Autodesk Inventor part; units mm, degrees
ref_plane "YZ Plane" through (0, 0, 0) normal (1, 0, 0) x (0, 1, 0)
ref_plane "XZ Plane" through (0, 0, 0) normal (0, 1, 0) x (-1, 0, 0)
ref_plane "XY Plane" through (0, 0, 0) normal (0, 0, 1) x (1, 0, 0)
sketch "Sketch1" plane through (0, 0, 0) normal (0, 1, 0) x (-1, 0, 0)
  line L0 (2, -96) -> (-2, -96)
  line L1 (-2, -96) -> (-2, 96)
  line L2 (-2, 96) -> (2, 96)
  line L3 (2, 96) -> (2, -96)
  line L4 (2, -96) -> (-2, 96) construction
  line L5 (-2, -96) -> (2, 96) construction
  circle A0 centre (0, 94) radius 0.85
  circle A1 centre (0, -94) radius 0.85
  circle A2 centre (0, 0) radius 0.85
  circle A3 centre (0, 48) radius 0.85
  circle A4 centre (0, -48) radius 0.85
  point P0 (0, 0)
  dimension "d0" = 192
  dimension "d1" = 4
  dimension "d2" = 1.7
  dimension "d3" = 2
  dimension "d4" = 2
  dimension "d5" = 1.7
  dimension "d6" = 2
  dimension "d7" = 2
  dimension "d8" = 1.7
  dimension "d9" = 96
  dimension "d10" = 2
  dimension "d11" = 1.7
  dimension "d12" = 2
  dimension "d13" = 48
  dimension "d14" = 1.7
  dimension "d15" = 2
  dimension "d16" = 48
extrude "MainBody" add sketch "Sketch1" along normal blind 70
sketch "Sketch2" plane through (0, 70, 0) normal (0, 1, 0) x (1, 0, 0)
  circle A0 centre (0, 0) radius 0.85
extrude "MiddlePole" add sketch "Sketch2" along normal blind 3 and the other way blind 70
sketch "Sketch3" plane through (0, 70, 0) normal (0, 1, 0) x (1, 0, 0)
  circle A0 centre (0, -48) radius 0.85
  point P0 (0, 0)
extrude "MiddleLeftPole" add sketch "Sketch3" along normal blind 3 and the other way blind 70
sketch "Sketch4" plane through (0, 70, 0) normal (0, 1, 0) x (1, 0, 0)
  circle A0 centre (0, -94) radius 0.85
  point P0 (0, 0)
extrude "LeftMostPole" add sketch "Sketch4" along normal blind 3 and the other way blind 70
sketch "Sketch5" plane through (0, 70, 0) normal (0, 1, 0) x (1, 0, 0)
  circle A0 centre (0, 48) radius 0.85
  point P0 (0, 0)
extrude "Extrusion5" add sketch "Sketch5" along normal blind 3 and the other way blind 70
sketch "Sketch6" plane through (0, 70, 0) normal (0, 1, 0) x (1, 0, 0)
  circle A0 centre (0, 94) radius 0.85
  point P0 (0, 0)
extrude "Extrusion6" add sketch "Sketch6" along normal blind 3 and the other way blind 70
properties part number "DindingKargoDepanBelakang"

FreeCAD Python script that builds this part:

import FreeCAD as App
import Part
import Sketcher
Q = App.Units.Quantity

doc = App.newDocument("Part")
body = doc.addObject("PartDesign::Body", "Body")

# Sketch on XZ plane
sketch1 = doc.addObject("Sketcher::SketchObject", "Sketch")
body.addObject(sketch1)
sketch1.AttachmentSupport = (doc.XZ_Plane, [""])
sketch1.MapMode = "FlatFace"
sketch1.addGeometry([
    Part.LineSegment(App.Vector(2, -96, 0), App.Vector(-2, -96, 0)),  # 0
    Part.LineSegment(App.Vector(-2, -96, 0), App.Vector(-2, 96, 0)),  # 1
    Part.LineSegment(App.Vector(-2, 96, 0), App.Vector(2, 96, 0)),  # 2
    Part.LineSegment(App.Vector(2, 96, 0), App.Vector(2, -96, 0)),  # 3
    Part.Circle(App.Vector(0, -94, 0), App.Vector(0, 0, 1), 0.8),  # 4
    Part.Circle(App.Vector(0, -48, 0), App.Vector(0, 0, 1), 0.8),  # 5
    Part.Circle(App.Vector(0, 0, 0), App.Vector(0, 0, 1), 0.8),  # 6
    Part.Circle(App.Vector(0, 48, 0), App.Vector(0, 0, 1), 0.8),  # 7
    Part.Circle(App.Vector(0, 94, 0), App.Vector(0, 0, 1), 0.8),  # 8
], False)
sketch1.addConstraint([
    Sketcher.Constraint("Coincident", 0, 2, 1, 1),
    Sketcher.Constraint("Coincident", 1, 2, 2, 1),
    Sketcher.Constraint("Coincident", 2, 2, 3, 1),
    Sketcher.Constraint("Coincident", 3, 2, 0, 1),
    Sketcher.Constraint("Horizontal", 0),
    Sketcher.Constraint("Vertical", 1),
    Sketcher.Constraint("Horizontal", 2),
    Sketcher.Constraint("Vertical", 3),
    Sketcher.Constraint("Coincident", 6, 3, -1, 1),
    Sketcher.Constraint("Equal", 4, 5),
    Sketcher.Constraint("Equal", 5, 6),
    Sketcher.Constraint("Equal", 6, 7),
    Sketcher.Constraint("Equal", 7, 8),
    Sketcher.Constraint("Symmetric", 5, 3, 7, 3, -1, 1),
    Sketcher.Constraint("Symmetric", 4, 3, 8, 3, -1, 1),
    Sketcher.Constraint("Symmetric", 0, 2, 2, 2, -1, 1),
    Sketcher.Constraint("PointOnObject", 4, 3, -2),
    Sketcher.Constraint("PointOnObject", 5, 3, -2),
    Sketcher.Constraint("Diameter", 4, Q("1.7 mm")),
    Sketcher.Constraint("DistanceX", 0, 2, 0, 1, Q("4 mm")),
    Sketcher.Constraint("DistanceY", 1, 1, 1, 2, Q("192 mm")),
    Sketcher.Constraint("DistanceY", 5, 3, -1, 1, Q("48 mm")),
    Sketcher.Constraint("DistanceY", 0, 2, 4, 3, Q("2 mm")),
])
pad1 = doc.addObject("PartDesign::Pad", "Pad")
body.addObject(pad1)
pad1.Profile = sketch1
pad1.Length = 70
pad1.Reversed = True

# Sketch on XZ plane
sketch2 = doc.addObject("Sketcher::SketchObject", "Sketch001")
body.addObject(sketch2)
sketch2.AttachmentSupport = (doc.XZ_Plane, [""])
sketch2.MapMode = "FlatFace"
sketch2.AttachmentOffset = App.Placement(App.Vector(0, 0, -70), App.Rotation())
sketch2.addGeometry(Part.Circle(App.Vector(0, 0, 0), App.Vector(0, 0, 1), 0.8), False)
sketch2.addConstraint([
    Sketcher.Constraint("Coincident", 0, 3, -1, 1),
    Sketcher.Constraint("Diameter", 0, Q("1.7 mm")),
])
pad2 = doc.addObject("PartDesign::Pad", "Pad001")
body.addObject(pad2)
pad2.Profile = sketch2
pad2.Type = "TwoLengths"
pad2.Length = 3
pad2.Length2 = 70
pad2.Reversed = True

# Sketch on XZ plane
sketch3 = doc.addObject("Sketcher::SketchObject", "Sketch002")
body.addObject(sketch3)
sketch3.AttachmentSupport = (doc.XZ_Plane, [""])
sketch3.MapMode = "FlatFace"
sketch3.AttachmentOffset = App.Placement(App.Vector(0, 0, -70), App.Rotation())
sketch3.addGeometry(Part.Circle(App.Vector(0, 48, 0), App.Vector(0, 0, 1), 0.8), False)
sketch3.addConstraint([
    Sketcher.Constraint("PointOnObject", 0, 3, -2),
    Sketcher.Constraint("Diameter", 0, Q("1.7 mm")),
    Sketcher.Constraint("DistanceY", -1, 1, 0, 3, Q("48 mm")),
])
pad3 = doc.addObject("PartDesign::Pad", "Pad002")
body.addObject(pad3)
pad3.Profile = sketch3
pad3.Type = "TwoLengths"
pad3.Length = 3
pad3.Length2 = 70
pad3.Reversed = True

# Sketch on XZ plane
sketch4 = doc.addObject("Sketcher::SketchObject", "Sketch003")
body.addObject(sketch4)
sketch4.AttachmentSupport = (doc.XZ_Plane, [""])
sketch4.MapMode = "FlatFace"
sketch4.AttachmentOffset = App.Placement(App.Vector(0, 0, -70), App.Rotation())
sketch4.addGeometry(Part.Circle(App.Vector(0, 94, 0), App.Vector(0, 0, 1), 0.8), False)
sketch4.addConstraint([
    Sketcher.Constraint("PointOnObject", 0, 3, -2),
    Sketcher.Constraint("Diameter", 0, Q("1.7 mm")),
    Sketcher.Constraint("DistanceY", -1, 1, 0, 3, Q("94 mm")),
])
pad4 = doc.addObject("PartDesign::Pad", "Pad003")
body.addObject(pad4)
pad4.Profile = sketch4
pad4.Type = "TwoLengths"
pad4.Length = 3
pad4.Length2 = 70
pad4.Reversed = True

# Sketch on XZ plane
sketch5 = doc.addObject("Sketcher::SketchObject", "Sketch004")
body.addObject(sketch5)
sketch5.AttachmentSupport = (doc.XZ_Plane, [""])
sketch5.MapMode = "FlatFace"
sketch5.AttachmentOffset = App.Placement(App.Vector(0, 0, -70), App.Rotation())
sketch5.addGeometry(Part.Circle(App.Vector(0, -48, 0), App.Vector(0, 0, 1), 0.8), False)
sketch5.addConstraint([
    Sketcher.Constraint("PointOnObject", 0, 3, -2),
    Sketcher.Constraint("Diameter", 0, Q("1.7 mm")),
    Sketcher.Constraint("DistanceY", 0, 3, -1, 1, Q("48 mm")),
])
pad5 = doc.addObject("PartDesign::Pad", "Pad004")
body.addObject(pad5)
pad5.Profile = sketch5
pad5.Type = "TwoLengths"
pad5.Length = 3
pad5.Length2 = 70
pad5.Reversed = True

# Sketch on XZ plane
sketch6 = doc.addObject("Sketcher::SketchObject", "Sketch005")
body.addObject(sketch6)
sketch6.AttachmentSupport = (doc.XZ_Plane, [""])
sketch6.MapMode = "FlatFace"
sketch6.AttachmentOffset = App.Placement(App.Vector(0, 0, -70), App.Rotation())
sketch6.addGeometry(Part.Circle(App.Vector(0, -94, 0), App.Vector(0, 0, 1), 0.8), False)
sketch6.addConstraint([
    Sketcher.Constraint("PointOnObject", 0, 3, -2),
    Sketcher.Constraint("Diameter", 0, Q("1.7 mm")),
    Sketcher.Constraint("DistanceY", 0, 3, -1, 1, Q("94 mm")),
])
pad6 = doc.addObject("PartDesign::Pad", "Pad005")
body.addObject(pad6)
pad6.Profile = sketch6
pad6.Type = "TwoLengths"
pad6.Length = 3
pad6.Length2 = 70
pad6.Reversed = True

doc.recompute()
